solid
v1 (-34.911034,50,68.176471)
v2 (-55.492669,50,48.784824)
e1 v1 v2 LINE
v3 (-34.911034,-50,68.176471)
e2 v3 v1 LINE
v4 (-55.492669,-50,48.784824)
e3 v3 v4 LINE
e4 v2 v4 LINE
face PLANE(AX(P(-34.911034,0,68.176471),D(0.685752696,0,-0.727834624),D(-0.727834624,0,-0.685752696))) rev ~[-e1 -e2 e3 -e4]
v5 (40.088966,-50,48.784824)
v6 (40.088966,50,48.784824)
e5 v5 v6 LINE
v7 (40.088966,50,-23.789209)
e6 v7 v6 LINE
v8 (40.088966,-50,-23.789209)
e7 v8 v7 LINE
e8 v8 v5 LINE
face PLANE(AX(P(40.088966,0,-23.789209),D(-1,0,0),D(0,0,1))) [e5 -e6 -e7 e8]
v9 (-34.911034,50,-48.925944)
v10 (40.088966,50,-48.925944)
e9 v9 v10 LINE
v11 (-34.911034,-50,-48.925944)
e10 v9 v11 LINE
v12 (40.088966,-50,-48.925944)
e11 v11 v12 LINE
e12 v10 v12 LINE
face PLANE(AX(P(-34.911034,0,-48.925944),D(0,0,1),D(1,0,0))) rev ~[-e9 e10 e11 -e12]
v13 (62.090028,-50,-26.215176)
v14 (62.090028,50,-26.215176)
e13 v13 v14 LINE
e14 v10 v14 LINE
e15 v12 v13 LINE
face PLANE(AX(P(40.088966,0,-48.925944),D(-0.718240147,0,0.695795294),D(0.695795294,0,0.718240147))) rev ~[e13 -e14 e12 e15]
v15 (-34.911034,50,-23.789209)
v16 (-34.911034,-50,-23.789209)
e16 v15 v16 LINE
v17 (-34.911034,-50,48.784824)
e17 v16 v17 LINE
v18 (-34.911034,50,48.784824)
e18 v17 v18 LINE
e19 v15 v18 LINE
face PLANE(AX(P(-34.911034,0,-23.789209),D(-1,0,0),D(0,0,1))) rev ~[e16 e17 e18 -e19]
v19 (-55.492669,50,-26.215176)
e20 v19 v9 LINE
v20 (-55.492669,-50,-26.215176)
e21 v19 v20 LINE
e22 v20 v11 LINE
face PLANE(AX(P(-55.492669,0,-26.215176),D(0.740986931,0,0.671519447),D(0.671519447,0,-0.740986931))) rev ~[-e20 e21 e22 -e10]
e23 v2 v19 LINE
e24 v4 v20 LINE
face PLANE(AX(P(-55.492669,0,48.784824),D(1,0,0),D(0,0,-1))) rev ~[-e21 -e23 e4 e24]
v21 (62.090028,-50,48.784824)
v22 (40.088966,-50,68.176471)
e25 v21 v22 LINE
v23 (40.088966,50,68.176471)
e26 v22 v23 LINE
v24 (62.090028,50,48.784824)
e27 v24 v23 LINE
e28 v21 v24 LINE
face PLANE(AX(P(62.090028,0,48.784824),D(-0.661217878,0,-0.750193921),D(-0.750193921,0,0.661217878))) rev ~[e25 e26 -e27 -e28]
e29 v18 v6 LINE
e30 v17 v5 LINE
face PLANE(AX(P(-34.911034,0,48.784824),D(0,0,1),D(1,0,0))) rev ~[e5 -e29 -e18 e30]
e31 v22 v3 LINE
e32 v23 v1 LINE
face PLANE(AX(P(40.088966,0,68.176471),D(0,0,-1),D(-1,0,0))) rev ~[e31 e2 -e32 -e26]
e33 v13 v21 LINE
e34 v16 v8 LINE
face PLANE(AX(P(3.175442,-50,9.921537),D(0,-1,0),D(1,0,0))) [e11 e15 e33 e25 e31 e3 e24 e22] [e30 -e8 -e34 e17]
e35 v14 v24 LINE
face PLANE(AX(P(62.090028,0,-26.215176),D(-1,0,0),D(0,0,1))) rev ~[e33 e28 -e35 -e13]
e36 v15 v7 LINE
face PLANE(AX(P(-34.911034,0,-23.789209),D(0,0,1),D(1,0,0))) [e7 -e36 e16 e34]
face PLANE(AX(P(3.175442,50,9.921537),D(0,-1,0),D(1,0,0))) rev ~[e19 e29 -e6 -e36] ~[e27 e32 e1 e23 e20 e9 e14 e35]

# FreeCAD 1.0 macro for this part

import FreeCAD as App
import Part
import Sketcher
Q = App.Units.Quantity

doc = App.newDocument("Part")
body = doc.addObject("PartDesign::Body", "Body")

# Sketch on XZ plane
sketch1 = body.newObject("Sketcher::SketchObject", "Sketch")
sketch1.AttachmentSupport = (doc.getObject("XZ_Plane"), [""])
sketch1.MapMode = "FlatFace"
sketch1.addGeometry(Part.LineSegment(App.Vector(-35, 68, 0), App.Vector(-55, 49, 0)), False)
sketch1.addGeometry(Part.LineSegment(App.Vector(-55, 49, 0), App.Vector(-55, -26, 0)), False)
sketch1.addGeometry(Part.LineSegment(App.Vector(-55, -26, 0), App.Vector(-35, -49, 0)), False)
sketch1.addGeometry(Part.LineSegment(App.Vector(-35, -49, 0), App.Vector(40, -49, 0)), False)
sketch1.addGeometry(Part.LineSegment(App.Vector(40, -49, 0), App.Vector(62, -26, 0)), False)
sketch1.addGeometry(Part.LineSegment(App.Vector(62, -26, 0), App.Vector(62, 49, 0)), False)
sketch1.addGeometry(Part.LineSegment(App.Vector(62, 49, 0), App.Vector(40, 68, 0)), False)
sketch1.addGeometry(Part.LineSegment(App.Vector(40, 68, 0), App.Vector(-35, 68, 0)), False)
sketch1.addGeometry(Part.LineSegment(App.Vector(40, -24, 0), App.Vector(-35, -24, 0)), False)
sketch1.addGeometry(Part.LineSegment(App.Vector(-35, -24, 0), App.Vector(-35, 49, 0)), False)
sketch1.addGeometry(Part.LineSegment(App.Vector(-35, 49, 0), App.Vector(40, 49, 0)), False)
sketch1.addGeometry(Part.LineSegment(App.Vector(40, 49, 0), App.Vector(40, -24, 0)), False)
sketch1.addConstraint(Sketcher.Constraint("Coincident", 0, 2, 1, 1))
sketch1.addConstraint(Sketcher.Constraint("Coincident", 1, 2, 2, 1))
sketch1.addConstraint(Sketcher.Constraint("Coincident", 2, 2, 3, 1))
sketch1.addConstraint(Sketcher.Constraint("Coincident", 3, 2, 4, 1))
sketch1.addConstraint(Sketcher.Constraint("Coincident", 4, 2, 5, 1))
sketch1.addConstraint(Sketcher.Constraint("Coincident", 5, 2, 6, 1))
sketch1.addConstraint(Sketcher.Constraint("Coincident", 6, 2, 7, 1))
sketch1.addConstraint(Sketcher.Constraint("Coincident", 7, 2, 0, 1))
sketch1.addConstraint(Sketcher.Constraint("Coincident", 8, 2, 9, 1))
sketch1.addConstraint(Sketcher.Constraint("Coincident", 9, 2, 10, 1))
sketch1.addConstraint(Sketcher.Constraint("Coincident", 10, 2, 11, 1))
sketch1.addConstraint(Sketcher.Constraint("Coincident", 11, 2, 8, 1))
sketch1.addConstraint(Sketcher.Constraint("Vertical", 1))
sketch1.addConstraint(Sketcher.Constraint("Horizontal", 3))
sketch1.addConstraint(Sketcher.Constraint("Vertical", 5))
sketch1.addConstraint(Sketcher.Constraint("Horizontal", 7))
sketch1.addConstraint(Sketcher.Constraint("Horizontal", 8))
sketch1.addConstraint(Sketcher.Constraint("Vertical", 9))
sketch1.addConstraint(Sketcher.Constraint("Horizontal", 10))
sketch1.addConstraint(Sketcher.Constraint("Vertical", 11))
sketch1.addConstraint(Sketcher.Constraint("Horizontal", 1, 2, 4, 2))
sketch1.addConstraint(Sketcher.Constraint("Horizontal", 0, 2, 5, 2))
sketch1.addConstraint(Sketcher.Constraint("Horizontal", 5, 2, 9, 2))
sketch1.addConstraint(Sketcher.Constraint("Vertical", 3, 2, 6, 2))
sketch1.addConstraint(Sketcher.Constraint("Vertical", 2, 2, 7, 2))
sketch1.addConstraint(Sketcher.Constraint("Vertical", 7, 2, 8, 2))
sketch1.addConstraint(Sketcher.Constraint("Vertical", 6, 2, 10, 2))
sketch1.addConstraint(Sketcher.Constraint("Equal", 10, 1))
sketch1.addConstraint(Sketcher.Constraint("DistanceX", 3, 1, 3, 2, Q("75 mm")))
sketch1.addConstraint(Sketcher.Constraint("Distance", 0, Q("28.2779 mm")))
sketch1.addConstraint(Sketcher.Constraint("Distance", 2, Q("30.649351 mm")))
sketch1.addConstraint(Sketcher.Constraint("Distance", 4, Q("31.620021 mm")))
sketch1.addConstraint(Sketcher.Constraint("DistanceY", 9, 1, 9, 2, Q("72.574033 mm")))
sketch1.addConstraint(Sketcher.Constraint("DistanceX", 0, 2, -1, 1, Q("55.492669 mm")))
sketch1.addConstraint(Sketcher.Constraint("DistanceY", -1, 1, 6, 2, Q("68.176471 mm")))
sketch1.addConstraint(Sketcher.Constraint("DistanceY", 8, 2, -1, 1, Q("23.789209 mm")))
pad1 = body.newObject("PartDesign::Pad", "Pad")
pad1.Profile = sketch1
pad1.Type = "TwoLengths"
pad1.Length = 50
pad1.Length2 = 50
pad1.Reversed = True

doc.recompute()
